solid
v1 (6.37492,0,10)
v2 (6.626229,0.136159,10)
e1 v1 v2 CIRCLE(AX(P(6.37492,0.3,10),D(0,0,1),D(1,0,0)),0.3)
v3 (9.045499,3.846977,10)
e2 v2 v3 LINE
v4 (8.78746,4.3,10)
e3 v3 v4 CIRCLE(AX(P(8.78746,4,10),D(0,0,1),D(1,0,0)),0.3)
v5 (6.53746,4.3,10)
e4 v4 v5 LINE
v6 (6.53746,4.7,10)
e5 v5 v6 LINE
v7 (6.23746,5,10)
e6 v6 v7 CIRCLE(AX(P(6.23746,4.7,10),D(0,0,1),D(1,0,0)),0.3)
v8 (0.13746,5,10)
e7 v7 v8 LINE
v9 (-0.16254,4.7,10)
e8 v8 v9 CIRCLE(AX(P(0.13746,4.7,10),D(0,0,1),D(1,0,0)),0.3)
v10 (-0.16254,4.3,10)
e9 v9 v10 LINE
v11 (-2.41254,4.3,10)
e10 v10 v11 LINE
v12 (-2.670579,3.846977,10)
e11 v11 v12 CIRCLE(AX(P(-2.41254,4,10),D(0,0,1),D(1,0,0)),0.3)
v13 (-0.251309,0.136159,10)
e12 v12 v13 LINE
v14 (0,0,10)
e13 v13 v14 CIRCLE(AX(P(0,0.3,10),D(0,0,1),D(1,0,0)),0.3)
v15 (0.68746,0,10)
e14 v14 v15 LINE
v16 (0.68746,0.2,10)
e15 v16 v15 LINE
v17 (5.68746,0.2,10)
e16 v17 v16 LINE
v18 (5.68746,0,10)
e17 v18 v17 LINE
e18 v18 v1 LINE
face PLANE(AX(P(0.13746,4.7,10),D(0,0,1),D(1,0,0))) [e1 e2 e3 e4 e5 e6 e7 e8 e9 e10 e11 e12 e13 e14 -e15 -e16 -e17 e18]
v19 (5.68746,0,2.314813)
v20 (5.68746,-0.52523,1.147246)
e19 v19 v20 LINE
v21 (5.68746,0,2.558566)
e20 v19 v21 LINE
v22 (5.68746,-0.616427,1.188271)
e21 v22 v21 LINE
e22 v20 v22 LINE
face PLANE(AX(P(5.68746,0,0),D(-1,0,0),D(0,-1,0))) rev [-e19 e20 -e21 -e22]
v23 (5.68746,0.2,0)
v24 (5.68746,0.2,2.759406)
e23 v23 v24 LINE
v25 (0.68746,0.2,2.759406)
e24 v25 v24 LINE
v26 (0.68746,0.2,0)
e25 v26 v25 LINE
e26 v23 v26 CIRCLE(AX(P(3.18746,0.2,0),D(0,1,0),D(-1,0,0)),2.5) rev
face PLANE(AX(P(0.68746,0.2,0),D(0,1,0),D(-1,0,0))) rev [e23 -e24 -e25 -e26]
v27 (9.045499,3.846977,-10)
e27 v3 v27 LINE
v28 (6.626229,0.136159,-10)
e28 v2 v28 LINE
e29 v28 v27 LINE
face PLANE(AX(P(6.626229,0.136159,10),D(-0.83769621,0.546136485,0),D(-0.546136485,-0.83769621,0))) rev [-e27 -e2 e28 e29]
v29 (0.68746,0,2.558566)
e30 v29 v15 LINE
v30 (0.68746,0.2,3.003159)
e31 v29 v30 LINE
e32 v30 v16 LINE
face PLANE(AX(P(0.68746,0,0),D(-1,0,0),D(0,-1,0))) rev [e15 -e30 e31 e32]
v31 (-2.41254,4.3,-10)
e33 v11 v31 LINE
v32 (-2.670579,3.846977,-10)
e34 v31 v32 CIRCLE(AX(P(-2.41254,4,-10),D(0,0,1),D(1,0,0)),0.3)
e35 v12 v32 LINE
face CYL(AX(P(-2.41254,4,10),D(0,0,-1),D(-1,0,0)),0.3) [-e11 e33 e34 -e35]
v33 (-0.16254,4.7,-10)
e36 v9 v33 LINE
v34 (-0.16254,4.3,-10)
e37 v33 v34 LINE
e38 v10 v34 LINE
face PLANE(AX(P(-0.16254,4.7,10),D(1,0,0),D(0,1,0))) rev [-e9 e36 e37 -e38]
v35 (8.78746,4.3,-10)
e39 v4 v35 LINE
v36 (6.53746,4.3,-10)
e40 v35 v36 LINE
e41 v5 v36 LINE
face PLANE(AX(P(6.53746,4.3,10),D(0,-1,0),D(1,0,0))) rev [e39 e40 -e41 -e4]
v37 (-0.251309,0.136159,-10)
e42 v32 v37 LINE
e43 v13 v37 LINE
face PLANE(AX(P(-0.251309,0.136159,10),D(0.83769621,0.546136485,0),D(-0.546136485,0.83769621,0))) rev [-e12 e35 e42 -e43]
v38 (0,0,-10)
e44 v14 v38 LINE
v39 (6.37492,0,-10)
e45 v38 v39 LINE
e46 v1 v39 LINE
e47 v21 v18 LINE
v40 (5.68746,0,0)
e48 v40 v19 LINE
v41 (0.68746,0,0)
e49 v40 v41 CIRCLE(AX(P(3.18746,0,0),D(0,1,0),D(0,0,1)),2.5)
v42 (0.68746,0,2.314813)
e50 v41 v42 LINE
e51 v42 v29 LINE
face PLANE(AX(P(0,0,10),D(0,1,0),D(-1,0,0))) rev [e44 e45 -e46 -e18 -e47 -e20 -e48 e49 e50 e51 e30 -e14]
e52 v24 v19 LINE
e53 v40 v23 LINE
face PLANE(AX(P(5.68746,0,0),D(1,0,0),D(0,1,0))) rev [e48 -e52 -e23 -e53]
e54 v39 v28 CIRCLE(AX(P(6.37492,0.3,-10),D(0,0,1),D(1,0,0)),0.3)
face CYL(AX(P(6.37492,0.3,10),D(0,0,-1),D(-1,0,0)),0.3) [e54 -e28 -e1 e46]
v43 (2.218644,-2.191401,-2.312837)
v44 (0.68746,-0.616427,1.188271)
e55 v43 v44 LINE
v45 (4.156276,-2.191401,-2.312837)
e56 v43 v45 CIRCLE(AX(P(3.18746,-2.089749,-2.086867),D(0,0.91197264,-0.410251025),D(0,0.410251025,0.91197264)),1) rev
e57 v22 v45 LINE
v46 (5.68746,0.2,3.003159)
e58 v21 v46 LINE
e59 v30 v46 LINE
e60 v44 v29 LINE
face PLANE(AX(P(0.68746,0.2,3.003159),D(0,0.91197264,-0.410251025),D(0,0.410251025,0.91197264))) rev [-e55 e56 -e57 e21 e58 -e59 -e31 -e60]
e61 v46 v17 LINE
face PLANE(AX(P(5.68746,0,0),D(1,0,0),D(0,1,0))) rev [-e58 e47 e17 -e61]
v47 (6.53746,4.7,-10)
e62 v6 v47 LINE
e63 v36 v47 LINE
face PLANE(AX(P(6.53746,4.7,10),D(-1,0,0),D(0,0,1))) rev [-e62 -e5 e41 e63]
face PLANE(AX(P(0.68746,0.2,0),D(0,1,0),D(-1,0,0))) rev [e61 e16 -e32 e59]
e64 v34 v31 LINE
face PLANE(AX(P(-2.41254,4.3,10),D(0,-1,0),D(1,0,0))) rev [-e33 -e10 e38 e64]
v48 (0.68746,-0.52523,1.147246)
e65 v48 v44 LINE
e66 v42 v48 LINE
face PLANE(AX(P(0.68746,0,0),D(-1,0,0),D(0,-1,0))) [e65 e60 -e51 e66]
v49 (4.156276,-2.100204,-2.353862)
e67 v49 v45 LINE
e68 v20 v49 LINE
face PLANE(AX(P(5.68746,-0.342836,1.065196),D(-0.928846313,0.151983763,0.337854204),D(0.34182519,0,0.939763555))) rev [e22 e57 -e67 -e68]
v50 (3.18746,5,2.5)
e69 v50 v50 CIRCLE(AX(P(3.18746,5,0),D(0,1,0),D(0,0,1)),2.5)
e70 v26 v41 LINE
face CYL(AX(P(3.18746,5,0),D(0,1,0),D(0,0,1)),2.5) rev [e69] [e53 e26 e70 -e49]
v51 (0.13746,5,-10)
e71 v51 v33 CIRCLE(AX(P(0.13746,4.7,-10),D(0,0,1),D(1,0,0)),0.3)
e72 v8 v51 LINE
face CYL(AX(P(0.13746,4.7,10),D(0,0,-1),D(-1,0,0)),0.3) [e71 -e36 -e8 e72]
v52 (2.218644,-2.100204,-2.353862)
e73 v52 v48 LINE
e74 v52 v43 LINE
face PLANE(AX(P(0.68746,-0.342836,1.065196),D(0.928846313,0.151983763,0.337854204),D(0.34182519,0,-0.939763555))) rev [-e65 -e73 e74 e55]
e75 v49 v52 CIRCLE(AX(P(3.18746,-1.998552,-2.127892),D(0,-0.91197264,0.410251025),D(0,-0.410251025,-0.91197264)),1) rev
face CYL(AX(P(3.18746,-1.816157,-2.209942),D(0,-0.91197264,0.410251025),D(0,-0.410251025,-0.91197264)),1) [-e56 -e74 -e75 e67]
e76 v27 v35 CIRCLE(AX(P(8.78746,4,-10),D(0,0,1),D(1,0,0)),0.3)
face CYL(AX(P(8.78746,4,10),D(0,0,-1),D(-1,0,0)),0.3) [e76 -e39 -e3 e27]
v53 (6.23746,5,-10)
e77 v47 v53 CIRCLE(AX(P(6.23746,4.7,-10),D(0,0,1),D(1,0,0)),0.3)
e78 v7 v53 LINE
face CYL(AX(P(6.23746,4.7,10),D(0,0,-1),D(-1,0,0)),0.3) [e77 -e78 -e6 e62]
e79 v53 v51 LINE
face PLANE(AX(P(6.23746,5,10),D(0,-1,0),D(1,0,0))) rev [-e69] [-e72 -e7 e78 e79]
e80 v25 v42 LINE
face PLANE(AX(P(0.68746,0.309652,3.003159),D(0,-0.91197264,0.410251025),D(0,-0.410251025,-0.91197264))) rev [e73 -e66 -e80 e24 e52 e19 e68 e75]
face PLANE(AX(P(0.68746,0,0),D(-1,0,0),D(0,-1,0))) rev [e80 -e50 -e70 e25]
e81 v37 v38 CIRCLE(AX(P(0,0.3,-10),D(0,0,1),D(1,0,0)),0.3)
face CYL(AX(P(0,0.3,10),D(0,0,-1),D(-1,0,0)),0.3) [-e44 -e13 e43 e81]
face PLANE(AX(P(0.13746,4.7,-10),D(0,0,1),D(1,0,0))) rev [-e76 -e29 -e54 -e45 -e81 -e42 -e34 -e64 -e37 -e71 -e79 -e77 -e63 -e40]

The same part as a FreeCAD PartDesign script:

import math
import FreeCAD as App
import Part
import Sketcher

V = App.Vector
Q = App.Units.Quantity

doc = App.newDocument("Part")
body = doc.addObject("PartDesign::Body", "Body")

# Sketch on XY plane
sketch1 = body.newObject("Sketcher::SketchObject", "Sketch")
sketch1.AttachmentSupport = (doc.getObject("XY_Plane"), [""])
sketch1.MapMode = "FlatFace"
sketch1.addGeometry([
    Part.LineSegment(V(-0.16, 4.7, 0), V(-0.16, 4.3, 0)),  # 0
    Part.LineSegment(V(-0.16, 4.3, 0), V(-2.41, 4.3, 0)),  # 1
    Part.ArcOfCircle(Part.Circle(V(-2.41, 4, 0), V(0, 0, 1), 0.3), math.radians(90), math.radians(211)),  # 2
    Part.LineSegment(V(-2.67, 3.85, 0), V(-0.25, 0.14, 0)),  # 3
    Part.ArcOfCircle(Part.Circle(V(0, 0.3, 0), V(0, 0, 1), 0.3), math.radians(-147), math.radians(-90)),  # 4
    Part.LineSegment(V(0, 0, 0), V(6.37, 0, 0)),  # 5
    Part.ArcOfCircle(Part.Circle(V(6.37, 0.3, 0), V(0, 0, 1), 0.3), math.radians(-90), math.radians(-33)),  # 6
    Part.LineSegment(V(6.63, 0.14, 0), V(9.05, 3.85, 0)),  # 7
    Part.ArcOfCircle(Part.Circle(V(8.79, 4, 0), V(0, 0, 1), 0.3), math.radians(-31), math.radians(90)),  # 8
    Part.LineSegment(V(8.79, 4.3, 0), V(6.54, 4.3, 0)),  # 9
    Part.LineSegment(V(6.54, 4.3, 0), V(6.54, 4.7, 0)),  # 10
    Part.ArcOfCircle(Part.Circle(V(6.24, 4.7, 0), V(0, 0, 1), 0.3), math.radians(0), math.radians(90)),  # 11
    Part.LineSegment(V(6.24, 5, 0), V(0.14, 5, 0)),  # 12
    Part.ArcOfCircle(Part.Circle(V(0.14, 4.7, 0), V(0, 0, 1), 0.3), math.radians(90), math.radians(180)),  # 13
], False)
sketch1.addConstraint([
    Sketcher.Constraint("Coincident", 0, 2, 1, 1),
    Sketcher.Constraint("Tangent", 1, 2, 2, 1),
    Sketcher.Constraint("Coincident", 2, 2, 3, 1),
    Sketcher.Constraint("Tangent", 3, 2, 4, 1),
    Sketcher.Constraint("Tangent", 4, 2, 5, 1),
    Sketcher.Constraint("Tangent", 5, 2, 6, 1),
    Sketcher.Constraint("Tangent", 6, 2, 7, 1),
    Sketcher.Constraint("Coincident", 7, 2, 8, 1),
    Sketcher.Constraint("Tangent", 8, 2, 9, 1),
    Sketcher.Constraint("Coincident", 9, 2, 10, 1),
    Sketcher.Constraint("Tangent", 10, 2, 11, 1),
    Sketcher.Constraint("Tangent", 11, 2, 12, 1),
    Sketcher.Constraint("Tangent", 12, 2, 13, 1),
    Sketcher.Constraint("Tangent", 13, 2, 0, 1),
    Sketcher.Constraint("Vertical", 0),
    Sketcher.Constraint("Horizontal", 1),
    Sketcher.Constraint("Horizontal", 5),
    Sketcher.Constraint("Horizontal", 9),
    Sketcher.Constraint("Vertical", 10),
    Sketcher.Constraint("Horizontal", 12),
    Sketcher.Constraint("Coincident", 4, 2, -1, 1),
    Sketcher.Constraint("Equal", 2, 4),
    Sketcher.Constraint("Equal", 4, 6),
    Sketcher.Constraint("Equal", 6, 8),
    Sketcher.Constraint("Equal", 8, 11),
    Sketcher.Constraint("Equal", 11, 13),
    Sketcher.Constraint("Horizontal", 2, 3, 8, 3),
    Sketcher.Constraint("Horizontal", 3, 2, 6, 2),
    Sketcher.Constraint("Horizontal", 2, 2, 7, 2),
    Sketcher.Constraint("Equal", 1, 9),
    Sketcher.Constraint("Radius", 2, Q("0.3 mm")),
    Sketcher.Constraint("DistanceX", 12, 2, 12, 1, Q("6.1 mm")),
    Sketcher.Constraint("DistanceY", 0, 2, 0, 1, Q("0.4 mm")),
    Sketcher.Constraint("DistanceY", -1, 1, 2, 3, Q("4 mm")),
    Sketcher.Constraint("DistanceX", 1, 2, 1, 1, Q("2.25 mm")),
    Sketcher.Constraint("DistanceX", 5, 1, 5, 2, Q("6.37492 mm")),
    Sketcher.Constraint("DistanceX", -1, 1, 7, 2, Q("9.045499 mm")),
])
pad1 = body.newObject("PartDesign::Pad", "Pad")
pad1.Profile = sketch1
pad1.Length = 20
pad1.Midplane = True

# Sketch on XZ plane
sketch2 = body.newObject("Sketcher::SketchObject", "Sketch001")
sketch2.AttachmentSupport = (doc.getObject("XZ_Plane"), [""])
sketch2.MapMode = "FlatFace"
sketch2.AttachmentOffset = App.Placement(V(0, 0, -5), App.Rotation())
sketch2.addGeometry(Part.Circle(V(3.2, 0, 0), V(0, 0, 1), 2.5), False)
sketch2.addConstraint([
    Sketcher.Constraint("PointOnObject", 0, 3, -1),
    Sketcher.Constraint("Diameter", 0, Q("5 mm")),
    Sketcher.Constraint("DistanceX", -1, 1, 0, 3, Q("3.18746 mm")),
])
doc.recompute()
hole = body.newObject("PartDesign::Hole", "Hole")
hole.Profile = sketch2
hole.ThreadType = "None"
hole.Diameter = 5
hole.DepthType = "ThroughAll"
hole.Reversed = True

# Sketch on XY plane
sketch3 = body.newObject("Sketcher::SketchObject", "Sketch002")
sketch3.AttachmentSupport = (doc.getObject("XY_Plane"), [""])
sketch3.MapMode = "FlatFace"
sketch3.AttachmentOffset = App.Placement(V(0, 0, 10), App.Rotation())
sketch3.addGeometry([
    Part.LineSegment(V(0.69, 0.2, 0), V(0.69, 0, 0)),
    Part.LineSegment(V(0.69, 0, 0), V(5.69, 0, 0)),
    Part.LineSegment(V(5.69, 0, 0), V(5.69, 0.2, 0)),
    Part.LineSegment(V(5.69, 0.2, 0), V(0.69, 0.2, 0)),
], False)
sketch3.addConstraint([
    Sketcher.Constraint("Coincident", 0, 2, 1, 1),
    Sketcher.Constraint("Coincident", 1, 2, 2, 1),
    Sketcher.Constraint("Coincident", 2, 2, 3, 1),
    Sketcher.Constraint("Coincident", 3, 2, 0, 1),
    Sketcher.Constraint("Vertical", 0),
    Sketcher.Constraint("Horizontal", 1),
    Sketcher.Constraint("Vertical", 2),
    Sketcher.Constraint("Horizontal", 3),
    Sketcher.Constraint("PointOnObject", 0, 2, -1),
    Sketcher.Constraint("DistanceX", 1, 1, 1, 2, Q("5 mm")),
    Sketcher.Constraint("DistanceY", 0, 2, 0, 1, Q("0.2 mm")),
    Sketcher.Constraint("DistanceX", -1, 1, 0, 2, Q("0.68746 mm")),
])
pocket1 = body.newObject("PartDesign::Pocket", "Pocket")
pocket1.Profile = sketch3
pocket1.Length = 10

# Sketch on YZ plane
sketch4 = body.newObject("Sketcher::SketchObject", "Sketch003")
sketch4.AttachmentSupport = (doc.getObject("YZ_Plane"), [""])
sketch4.MapMode = "FlatFace"
sketch4.AttachmentOffset = App.Placement(V(0, 0, 3.18746), App.Rotation())
sketch4.addGeometry([
    Part.LineSegment(V(-2.5, -3, 0), V(0.2, 3, 0)),
    Part.LineSegment(V(0.2, 3, 0), V(0.31, 3, 0)),
    Part.LineSegment(V(0.31, 3, 0), V(-2.41, -3.04, 0)),
    Part.LineSegment(V(-2.41, -3.04, 0), V(-2.5, -3, 0)),
], False)
sketch4.addConstraint([
    Sketcher.Constraint("Coincident", 0, 2, 1, 1),
    Sketcher.Constraint("Coincident", 1, 2, 2, 1),
    Sketcher.Constraint("Coincident", 2, 2, 3, 1),
    Sketcher.Constraint("Coincident", 3, 2, 0, 1),
    Sketcher.Constraint("Horizontal", 1),
    Sketcher.Constraint("Parallel", 0, 2),
    Sketcher.Constraint("Perpendicular", 2, 3),
    Sketcher.Constraint("Distance", 3, Q("0.1 mm")),
    Sketcher.Constraint("DistanceX", -1, 1, 0, 2, Q("0.2 mm")),
    Sketcher.Constraint("DistanceX", 3, 2, -1, 1, Q("2.5 mm")),
    Sketcher.Constraint("DistanceY", 3, 2, 0, 2, Q("6.001999 mm")),
    Sketcher.Constraint("DistanceY", -1, 1, 0, 2, Q("3.003159 mm")),
])
pad2 = body.newObject("PartDesign::Pad", "Pad001")
pad2.Profile = sketch4
pad2.Length = 5
pad2.Midplane = True

# Sketch on an angled plane
sketch5 = body.newObject("Sketcher::SketchObject", "Sketch004")
sketch5.Placement = App.Placement(V(0, -0.957256, 0.430622), App.Rotation(V(1, 0, 0), V(0, 0.410251025, 0.91197264), V(0, -0.91197264, 0.410251025), "ZXY"))
sketch5.addGeometry([
    Part.LineSegment(V(5.7, 0.8, 0), V(4.2, -3, 0)),  # 0
    Part.ArcOfCircle(Part.Circle(V(3.2, -2.8, 0), V(0, 0, 1), 1), math.radians(-166), math.radians(-14)),  # 1
    Part.LineSegment(V(2.2, -3, 0), V(0.7, 0.8, 0)),  # 2
    Part.LineSegment(V(0.7, 0.8, 0), V(-4.8, -0.2, 0)),  # 3
    Part.LineSegment(V(-4.8, -0.2, 0), V(4.4, -8.7, 0)),  # 4
    Part.LineSegment(V(4.4, -8.7, 0), V(7.4, -1.7, 0)),  # 5
    Part.LineSegment(V(7.4, -1.7, 0), V(5.7, 0.8, 0)),  # 6
], False)
sketch5.addConstraint([
    Sketcher.Constraint("Coincident", 0, 2, 1, 2),
    Sketcher.Constraint("Coincident", 1, 1, 2, 1),
    Sketcher.Constraint("Coincident", 2, 2, 3, 1),
    Sketcher.Constraint("Coincident", 3, 2, 4, 1),
    Sketcher.Constraint("Coincident", 4, 2, 5, 1),
    Sketcher.Constraint("Coincident", 5, 2, 6, 1),
    Sketcher.Constraint("Coincident", 6, 2, 0, 1),
    Sketcher.Constraint("Horizontal", 0, 2, 1, 1),
    Sketcher.Constraint("Horizontal", 2, 2, 6, 2),
    Sketcher.Constraint("Equal", 0, 2),
    Sketcher.Constraint("Radius", 1, Q("1 mm")),
    Sketcher.Constraint("DistanceX", 2, 2, 6, 2, Q("5 mm")),
    Sketcher.Constraint("Distance", 3, Q("5.622458 mm")),
    Sketcher.Constraint("Distance", 4, Q("12.532428 mm")),
    Sketcher.Constraint("DistanceX", -1, 1, 1, 3, Q("3.18746 mm")),
    Sketcher.Constraint("DistanceY", 0, 2, -1, 1, Q("3.008269 mm")),
    Sketcher.Constraint("DistanceY", -1, 1, 2, 2, Q("0.830781 mm")),
    Sketcher.Constraint("DistanceY", 5, 2, -1, 1, Q("1.66519 mm")),
    Sketcher.Constraint("DistanceY", 0, 2, 1, 3, Q("0.247781 mm")),
    Sketcher.Constraint("DistanceX", 3, 2, 1, 1, Q("7.05455 mm")),
    Sketcher.Constraint("DistanceX", 1, 1, 4, 2, Q("2.199518 mm")),
    Sketcher.Constraint("DistanceX", 1, 1, 5, 2, Q("5.133379 mm")),
])
pocket2 = body.newObject("PartDesign::Pocket", "Pocket001")
pocket2.Profile = sketch5
pocket2.Length = 0.3

doc.recompute()
